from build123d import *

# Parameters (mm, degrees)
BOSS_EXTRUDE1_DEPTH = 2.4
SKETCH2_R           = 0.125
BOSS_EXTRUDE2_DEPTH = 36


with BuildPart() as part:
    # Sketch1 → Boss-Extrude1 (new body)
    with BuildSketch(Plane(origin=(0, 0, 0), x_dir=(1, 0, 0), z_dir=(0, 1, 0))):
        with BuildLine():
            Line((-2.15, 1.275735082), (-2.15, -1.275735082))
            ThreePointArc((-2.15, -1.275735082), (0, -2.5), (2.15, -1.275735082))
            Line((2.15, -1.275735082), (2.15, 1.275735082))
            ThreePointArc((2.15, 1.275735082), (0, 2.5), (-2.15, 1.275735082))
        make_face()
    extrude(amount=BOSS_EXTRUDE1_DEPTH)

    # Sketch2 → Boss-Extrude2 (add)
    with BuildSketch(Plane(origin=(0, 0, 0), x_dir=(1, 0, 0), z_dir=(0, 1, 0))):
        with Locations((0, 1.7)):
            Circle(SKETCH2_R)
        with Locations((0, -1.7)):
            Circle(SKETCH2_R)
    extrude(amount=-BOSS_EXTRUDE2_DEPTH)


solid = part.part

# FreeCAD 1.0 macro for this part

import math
import FreeCAD as App
import Part
import Sketcher
from FreeCAD import Vector
Q = App.Units.Quantity

doc = App.newDocument("Part")
params = doc.addObject("Spreadsheet::Sheet", "Params")
for row, (alias, value) in enumerate([
    ("sketch1_radius", "2.5 mm"),
    ("pad1_length", "2.4 mm"),
    ("sketch2_diameter", "0.25 mm"),
    ("pad2_length", "36 mm"),
], start=1):
    params.set(f"A{row}", alias)
    params.set(f"B{row}", "=" + value)
    params.setAlias(f"B{row}", alias)

body = doc.addObject("PartDesign::Body", "Body")

# Sketch on XZ plane
sketch1 = doc.addObject("Sketcher::SketchObject", "Sketch")
body.addObject(sketch1)
sketch1.AttachmentSupport = (doc.XZ_Plane, [""])
sketch1.MapMode = "FlatFace"
sketch1.addGeometry(Part.LineSegment(Vector(-2.15, -1.275735, 0), Vector(-2.15, 1.275735, 0)), False)
sketch1.addGeometry(Part.ArcOfCircle(Part.Circle(Vector(0, 0, 0), Vector(0, 0, 1), 2.5), math.radians(30.683417), math.radians(149.316583)), False)
sketch1.addGeometry(Part.LineSegment(Vector(2.15, 1.275735, 0), Vector(2.15, -1.275735, 0)), False)
sketch1.addGeometry(Part.ArcOfCircle(Part.Circle(Vector(0, 0, 0), Vector(0, 0, 1), 2.5), math.radians(-149.316583), math.radians(-30.683417)), False)
sketch1.addConstraint(Sketcher.Constraint("Coincident", 0, 2, 1, 2))
sketch1.addConstraint(Sketcher.Constraint("Coincident", 1, 1, 2, 1))
sketch1.addConstraint(Sketcher.Constraint("Coincident", 2, 2, 3, 2))
sketch1.addConstraint(Sketcher.Constraint("Coincident", 3, 1, 0, 1))
sketch1.addConstraint(Sketcher.Constraint("Vertical", 0))
sketch1.addConstraint(Sketcher.Constraint("Vertical", 2))
sketch1.addConstraint(Sketcher.Constraint("Coincident", 1, 3, -1, 1))
sketch1.addConstraint(Sketcher.Constraint("Coincident", 3, 3, -1, 1))
sketch1.addConstraint(Sketcher.Constraint("Equal", 1, 3))
sketch1.addConstraint(Sketcher.Constraint("Horizontal", 0, 2, 1, 1))
sketch1.addConstraint(Sketcher.Constraint("Radius", 1, Q("2.5 mm")))
sketch1.addConstraint(Sketcher.Constraint("DistanceX", 0, 2, 1, 1, Q("4.3 mm")))
sketch1.setExpression("Constraints[10]", "Params.sketch1_radius")
pad1 = doc.addObject("PartDesign::Pad", "Pad")
body.addObject(pad1)
pad1.Profile = sketch1
pad1.setExpression("Length", "Params.pad1_length")
pad1.Reversed = True

# Sketch on XZ plane
sketch2 = doc.addObject("Sketcher::SketchObject", "Sketch001")
body.addObject(sketch2)
sketch2.AttachmentSupport = (doc.XZ_Plane, [""])
sketch2.MapMode = "FlatFace"
sketch2.addGeometry(Part.Circle(Vector(0, -1.7, 0), Vector(0, 0, 1), 0.125), False)
sketch2.addGeometry(Part.Circle(Vector(0, 1.7, 0), Vector(0, 0, 1), 0.125), False)
sketch2.addConstraint(Sketcher.Constraint("Equal", 0, 1))
sketch2.addConstraint(Sketcher.Constraint("Symmetric", 0, 3, 1, 3, -1, 1))
sketch2.addConstraint(Sketcher.Constraint("PointOnObject", 0, 3, -2))
sketch2.addConstraint(Sketcher.Constraint("Diameter", 0, Q("0.25 mm")))
sketch2.addConstraint(Sketcher.Constraint("DistanceY", 0, 3, -1, 1, Q("1.7 mm")))
sketch2.setExpression("Constraints[3]", "Params.sketch2_diameter")
pad2 = doc.addObject("PartDesign::Pad", "Pad001")
body.addObject(pad2)
pad2.Profile = sketch2
pad2.setExpression("Length", "Params.pad2_length")

doc.recompute()
